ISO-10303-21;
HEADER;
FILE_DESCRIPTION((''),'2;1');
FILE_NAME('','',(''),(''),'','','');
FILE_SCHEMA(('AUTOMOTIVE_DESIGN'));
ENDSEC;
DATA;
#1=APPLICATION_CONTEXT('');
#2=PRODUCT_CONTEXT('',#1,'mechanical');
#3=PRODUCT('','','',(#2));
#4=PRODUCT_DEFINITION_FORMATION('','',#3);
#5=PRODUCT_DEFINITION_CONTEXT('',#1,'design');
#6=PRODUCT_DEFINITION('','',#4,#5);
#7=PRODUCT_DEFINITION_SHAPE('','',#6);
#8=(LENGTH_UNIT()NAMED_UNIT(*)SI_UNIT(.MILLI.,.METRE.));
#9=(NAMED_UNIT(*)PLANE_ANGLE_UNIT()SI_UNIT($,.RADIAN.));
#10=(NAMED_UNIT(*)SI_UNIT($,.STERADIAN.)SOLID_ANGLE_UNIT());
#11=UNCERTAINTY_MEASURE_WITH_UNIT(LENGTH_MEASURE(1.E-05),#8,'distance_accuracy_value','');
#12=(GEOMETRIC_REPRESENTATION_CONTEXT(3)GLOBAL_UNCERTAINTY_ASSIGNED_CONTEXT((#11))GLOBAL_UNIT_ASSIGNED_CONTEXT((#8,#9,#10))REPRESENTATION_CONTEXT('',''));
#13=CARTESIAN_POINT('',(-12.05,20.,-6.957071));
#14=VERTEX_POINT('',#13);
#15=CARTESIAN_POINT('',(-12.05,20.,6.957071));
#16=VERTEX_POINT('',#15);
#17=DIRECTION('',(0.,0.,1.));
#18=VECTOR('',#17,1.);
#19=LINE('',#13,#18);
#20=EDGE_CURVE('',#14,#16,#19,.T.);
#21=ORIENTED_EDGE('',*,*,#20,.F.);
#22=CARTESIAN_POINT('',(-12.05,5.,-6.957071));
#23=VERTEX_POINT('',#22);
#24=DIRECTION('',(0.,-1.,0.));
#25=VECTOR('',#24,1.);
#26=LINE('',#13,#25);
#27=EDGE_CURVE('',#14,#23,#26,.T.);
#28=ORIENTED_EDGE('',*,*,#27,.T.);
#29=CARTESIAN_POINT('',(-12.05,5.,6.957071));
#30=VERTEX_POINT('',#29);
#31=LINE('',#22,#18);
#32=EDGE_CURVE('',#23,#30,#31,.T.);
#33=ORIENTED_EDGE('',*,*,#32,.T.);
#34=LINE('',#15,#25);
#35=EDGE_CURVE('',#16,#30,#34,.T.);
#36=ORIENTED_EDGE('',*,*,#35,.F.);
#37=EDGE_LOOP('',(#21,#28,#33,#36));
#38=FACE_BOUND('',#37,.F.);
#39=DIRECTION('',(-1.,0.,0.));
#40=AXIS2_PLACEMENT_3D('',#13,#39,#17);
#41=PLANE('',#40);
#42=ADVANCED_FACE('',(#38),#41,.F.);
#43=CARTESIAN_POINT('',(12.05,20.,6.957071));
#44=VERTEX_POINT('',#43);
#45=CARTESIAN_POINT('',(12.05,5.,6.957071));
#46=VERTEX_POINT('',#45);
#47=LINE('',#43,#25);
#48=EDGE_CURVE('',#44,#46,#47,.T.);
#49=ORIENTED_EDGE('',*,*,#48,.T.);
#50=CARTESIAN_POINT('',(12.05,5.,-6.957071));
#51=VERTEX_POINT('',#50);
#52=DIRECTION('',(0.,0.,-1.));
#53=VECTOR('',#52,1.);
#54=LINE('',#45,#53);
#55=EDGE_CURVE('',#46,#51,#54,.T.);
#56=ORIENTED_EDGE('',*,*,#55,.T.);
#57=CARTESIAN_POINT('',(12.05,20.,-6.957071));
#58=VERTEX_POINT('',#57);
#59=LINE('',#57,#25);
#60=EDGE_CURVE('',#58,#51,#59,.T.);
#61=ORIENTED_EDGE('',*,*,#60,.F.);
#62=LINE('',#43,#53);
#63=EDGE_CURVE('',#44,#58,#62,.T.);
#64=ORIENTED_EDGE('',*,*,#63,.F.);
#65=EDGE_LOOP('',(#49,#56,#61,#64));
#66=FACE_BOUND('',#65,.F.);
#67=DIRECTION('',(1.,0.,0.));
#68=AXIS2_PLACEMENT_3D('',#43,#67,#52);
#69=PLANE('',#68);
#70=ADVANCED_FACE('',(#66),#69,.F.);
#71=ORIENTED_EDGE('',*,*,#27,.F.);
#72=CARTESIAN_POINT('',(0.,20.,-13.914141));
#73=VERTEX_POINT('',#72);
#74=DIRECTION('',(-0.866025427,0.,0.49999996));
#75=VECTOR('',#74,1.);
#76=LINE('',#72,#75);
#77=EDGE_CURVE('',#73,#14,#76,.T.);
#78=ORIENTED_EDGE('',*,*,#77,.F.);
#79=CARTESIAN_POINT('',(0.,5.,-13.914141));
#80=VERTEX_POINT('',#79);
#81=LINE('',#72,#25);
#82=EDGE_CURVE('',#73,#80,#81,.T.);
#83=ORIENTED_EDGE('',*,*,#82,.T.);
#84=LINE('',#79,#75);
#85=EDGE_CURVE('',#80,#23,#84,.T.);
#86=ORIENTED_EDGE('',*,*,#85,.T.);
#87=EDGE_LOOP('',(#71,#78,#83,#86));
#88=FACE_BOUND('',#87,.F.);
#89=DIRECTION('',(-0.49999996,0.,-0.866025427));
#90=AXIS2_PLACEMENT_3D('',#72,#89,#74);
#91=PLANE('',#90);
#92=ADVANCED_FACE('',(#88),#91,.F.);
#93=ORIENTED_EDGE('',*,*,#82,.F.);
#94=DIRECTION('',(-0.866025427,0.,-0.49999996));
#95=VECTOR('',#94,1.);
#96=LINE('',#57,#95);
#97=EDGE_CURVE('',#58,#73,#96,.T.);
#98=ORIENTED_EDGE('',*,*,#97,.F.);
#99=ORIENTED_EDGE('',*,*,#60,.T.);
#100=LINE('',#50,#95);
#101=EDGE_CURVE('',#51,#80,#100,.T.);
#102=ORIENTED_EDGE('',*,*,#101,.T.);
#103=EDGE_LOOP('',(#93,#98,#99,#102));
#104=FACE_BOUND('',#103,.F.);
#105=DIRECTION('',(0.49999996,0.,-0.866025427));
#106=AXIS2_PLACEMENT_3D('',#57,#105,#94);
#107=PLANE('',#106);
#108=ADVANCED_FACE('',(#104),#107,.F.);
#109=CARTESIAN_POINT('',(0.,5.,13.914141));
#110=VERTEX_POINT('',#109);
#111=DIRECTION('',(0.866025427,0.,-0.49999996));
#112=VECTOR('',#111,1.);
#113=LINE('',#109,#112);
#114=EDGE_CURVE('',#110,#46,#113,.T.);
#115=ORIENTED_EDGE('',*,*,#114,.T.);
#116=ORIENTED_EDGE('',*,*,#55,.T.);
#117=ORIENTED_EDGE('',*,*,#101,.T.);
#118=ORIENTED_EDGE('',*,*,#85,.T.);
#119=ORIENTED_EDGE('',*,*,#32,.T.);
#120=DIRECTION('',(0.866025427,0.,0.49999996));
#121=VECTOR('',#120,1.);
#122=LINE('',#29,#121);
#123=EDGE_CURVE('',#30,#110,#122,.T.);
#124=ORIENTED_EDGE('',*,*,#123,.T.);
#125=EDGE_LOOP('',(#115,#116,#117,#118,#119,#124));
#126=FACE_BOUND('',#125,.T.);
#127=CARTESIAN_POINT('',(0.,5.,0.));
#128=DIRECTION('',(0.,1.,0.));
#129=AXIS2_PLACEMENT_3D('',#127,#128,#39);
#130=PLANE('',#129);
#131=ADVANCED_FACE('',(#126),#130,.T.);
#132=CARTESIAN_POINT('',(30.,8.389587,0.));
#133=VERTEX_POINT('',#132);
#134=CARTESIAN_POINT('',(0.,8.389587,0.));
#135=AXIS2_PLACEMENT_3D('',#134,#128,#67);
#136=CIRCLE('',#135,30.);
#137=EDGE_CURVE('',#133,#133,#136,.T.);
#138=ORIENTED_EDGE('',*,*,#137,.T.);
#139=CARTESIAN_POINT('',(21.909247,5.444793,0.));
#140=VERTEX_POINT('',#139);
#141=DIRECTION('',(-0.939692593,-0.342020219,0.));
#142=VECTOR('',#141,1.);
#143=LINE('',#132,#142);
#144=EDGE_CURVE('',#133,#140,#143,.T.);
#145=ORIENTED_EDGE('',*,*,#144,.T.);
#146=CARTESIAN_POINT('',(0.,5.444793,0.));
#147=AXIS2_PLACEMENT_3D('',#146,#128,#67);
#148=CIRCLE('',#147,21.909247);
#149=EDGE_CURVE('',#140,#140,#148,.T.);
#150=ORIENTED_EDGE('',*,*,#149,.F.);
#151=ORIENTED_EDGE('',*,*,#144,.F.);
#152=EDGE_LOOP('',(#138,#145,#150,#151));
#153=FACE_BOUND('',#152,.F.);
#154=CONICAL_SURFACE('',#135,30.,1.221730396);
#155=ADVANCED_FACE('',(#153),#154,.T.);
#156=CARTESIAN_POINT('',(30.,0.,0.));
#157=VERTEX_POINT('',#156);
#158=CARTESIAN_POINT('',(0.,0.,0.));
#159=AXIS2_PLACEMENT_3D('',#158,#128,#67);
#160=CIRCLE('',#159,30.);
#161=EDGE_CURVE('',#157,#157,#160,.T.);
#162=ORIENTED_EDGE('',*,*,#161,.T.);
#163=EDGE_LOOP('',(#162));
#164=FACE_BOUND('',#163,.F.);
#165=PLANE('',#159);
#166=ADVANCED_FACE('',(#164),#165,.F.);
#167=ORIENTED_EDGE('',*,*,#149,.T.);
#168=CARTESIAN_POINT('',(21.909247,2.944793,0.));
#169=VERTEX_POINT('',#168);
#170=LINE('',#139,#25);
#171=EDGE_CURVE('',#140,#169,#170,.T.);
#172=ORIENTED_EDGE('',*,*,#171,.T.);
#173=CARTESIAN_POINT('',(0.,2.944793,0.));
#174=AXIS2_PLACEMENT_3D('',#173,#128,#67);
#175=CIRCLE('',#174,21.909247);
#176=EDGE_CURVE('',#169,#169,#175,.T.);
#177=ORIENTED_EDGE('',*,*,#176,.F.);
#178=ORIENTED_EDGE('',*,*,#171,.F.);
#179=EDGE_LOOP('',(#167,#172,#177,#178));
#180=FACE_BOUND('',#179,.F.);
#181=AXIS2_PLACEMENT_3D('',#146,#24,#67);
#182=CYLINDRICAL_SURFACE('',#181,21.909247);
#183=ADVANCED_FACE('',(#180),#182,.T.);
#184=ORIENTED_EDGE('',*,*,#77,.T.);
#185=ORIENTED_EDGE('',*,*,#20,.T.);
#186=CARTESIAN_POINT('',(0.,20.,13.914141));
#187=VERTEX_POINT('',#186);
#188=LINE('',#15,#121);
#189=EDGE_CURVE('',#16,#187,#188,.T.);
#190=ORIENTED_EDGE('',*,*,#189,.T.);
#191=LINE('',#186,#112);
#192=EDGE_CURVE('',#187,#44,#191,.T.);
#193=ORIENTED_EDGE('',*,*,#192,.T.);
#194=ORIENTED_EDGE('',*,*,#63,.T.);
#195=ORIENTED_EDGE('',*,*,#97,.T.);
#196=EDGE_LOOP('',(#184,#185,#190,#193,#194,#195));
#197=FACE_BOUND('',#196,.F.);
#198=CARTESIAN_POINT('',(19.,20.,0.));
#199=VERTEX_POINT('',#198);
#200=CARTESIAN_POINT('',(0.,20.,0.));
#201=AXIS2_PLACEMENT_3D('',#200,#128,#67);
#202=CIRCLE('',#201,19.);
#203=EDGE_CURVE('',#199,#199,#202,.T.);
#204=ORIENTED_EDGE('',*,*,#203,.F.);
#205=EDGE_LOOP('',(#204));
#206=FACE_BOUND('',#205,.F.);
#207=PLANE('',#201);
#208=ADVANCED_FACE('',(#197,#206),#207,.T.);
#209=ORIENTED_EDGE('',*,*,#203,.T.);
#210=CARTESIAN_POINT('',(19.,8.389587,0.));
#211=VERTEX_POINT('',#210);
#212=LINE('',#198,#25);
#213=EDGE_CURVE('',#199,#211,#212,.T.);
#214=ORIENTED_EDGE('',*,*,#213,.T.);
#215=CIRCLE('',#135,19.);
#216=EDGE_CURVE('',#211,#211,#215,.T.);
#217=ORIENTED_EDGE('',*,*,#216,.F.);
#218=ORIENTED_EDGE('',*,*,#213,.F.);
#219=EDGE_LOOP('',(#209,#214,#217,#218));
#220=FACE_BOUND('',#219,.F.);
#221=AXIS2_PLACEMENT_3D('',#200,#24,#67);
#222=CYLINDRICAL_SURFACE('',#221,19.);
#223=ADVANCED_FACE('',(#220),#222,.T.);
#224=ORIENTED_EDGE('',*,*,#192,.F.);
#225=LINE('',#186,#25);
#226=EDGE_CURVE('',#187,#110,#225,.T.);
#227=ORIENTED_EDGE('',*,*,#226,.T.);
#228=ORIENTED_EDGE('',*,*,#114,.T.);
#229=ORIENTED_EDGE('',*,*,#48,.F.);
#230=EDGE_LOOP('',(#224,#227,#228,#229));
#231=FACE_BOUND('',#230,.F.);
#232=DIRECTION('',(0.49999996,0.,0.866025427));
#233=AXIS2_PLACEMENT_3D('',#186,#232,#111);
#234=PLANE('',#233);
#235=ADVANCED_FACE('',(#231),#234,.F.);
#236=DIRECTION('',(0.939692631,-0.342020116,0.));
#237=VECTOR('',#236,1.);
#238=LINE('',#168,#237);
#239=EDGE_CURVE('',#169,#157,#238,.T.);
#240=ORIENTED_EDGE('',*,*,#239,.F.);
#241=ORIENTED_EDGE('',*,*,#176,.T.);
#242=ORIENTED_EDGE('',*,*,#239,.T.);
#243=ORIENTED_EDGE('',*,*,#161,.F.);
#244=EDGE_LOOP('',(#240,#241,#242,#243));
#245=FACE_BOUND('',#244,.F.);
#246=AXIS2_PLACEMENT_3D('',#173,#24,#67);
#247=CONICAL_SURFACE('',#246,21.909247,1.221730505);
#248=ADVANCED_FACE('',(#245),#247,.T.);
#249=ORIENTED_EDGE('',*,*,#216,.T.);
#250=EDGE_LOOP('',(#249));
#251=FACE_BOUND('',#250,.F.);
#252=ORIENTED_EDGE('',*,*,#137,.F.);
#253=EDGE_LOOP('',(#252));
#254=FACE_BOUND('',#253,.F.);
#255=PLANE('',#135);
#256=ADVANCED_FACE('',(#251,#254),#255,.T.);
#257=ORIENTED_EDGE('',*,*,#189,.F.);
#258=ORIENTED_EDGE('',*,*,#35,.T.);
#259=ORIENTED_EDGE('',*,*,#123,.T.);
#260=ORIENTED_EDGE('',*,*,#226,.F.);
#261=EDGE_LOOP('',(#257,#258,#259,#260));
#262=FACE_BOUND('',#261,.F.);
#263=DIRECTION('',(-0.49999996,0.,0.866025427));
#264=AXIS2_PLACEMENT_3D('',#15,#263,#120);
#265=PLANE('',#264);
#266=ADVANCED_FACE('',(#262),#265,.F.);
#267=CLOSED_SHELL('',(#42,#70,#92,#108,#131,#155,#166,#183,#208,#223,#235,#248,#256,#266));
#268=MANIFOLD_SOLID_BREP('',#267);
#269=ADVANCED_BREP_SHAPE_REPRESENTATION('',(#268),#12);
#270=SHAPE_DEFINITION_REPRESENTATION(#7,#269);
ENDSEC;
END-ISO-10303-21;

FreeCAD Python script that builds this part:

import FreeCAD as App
import Part
import Sketcher
Q = App.Units.Quantity


def add_polygon(sketch, points):
    """Adds a closed chain of lines whose ends are joined by coincident constraints."""
    first, n = sketch.GeometryCount, len(points)
    for a, b in zip(points, points[1:] + points[:1]):
        sketch.addGeometry(Part.LineSegment(App.Vector(*a, 0), App.Vector(*b, 0)), False)
    for i in range(n):
        sketch.addConstraint(Sketcher.Constraint("Coincident", first + i, 2, first + (i + 1) % n, 1))

doc = App.newDocument("Part")
body = doc.addObject("PartDesign::Body", "Body")

sketch1 = body.newObject("Sketcher::SketchObject", "Sketch")
sketch1.AttachmentSupport = (doc.getObject("XY_Plane"), [""])
sketch1.MapMode = "FlatFace"
add_polygon(sketch1, [(19, 20), (0, 20), (0, 0), (30, 0), (21.9, 2.9), (21.9, 5.4), (30, 8.4), (19, 8.4)])
sketch1.addConstraint(Sketcher.Constraint("Horizontal", 0))
sketch1.addConstraint(Sketcher.Constraint("Vertical", 1))
sketch1.addConstraint(Sketcher.Constraint("Horizontal", 2))
sketch1.addConstraint(Sketcher.Constraint("Vertical", 4))
sketch1.addConstraint(Sketcher.Constraint("Horizontal", 6))
sketch1.addConstraint(Sketcher.Constraint("Vertical", 7))
sketch1.addConstraint(Sketcher.Constraint("Coincident", 1, 2, -1, 1))
sketch1.addConstraint(Sketcher.Constraint("Vertical", 2, 2, 5, 2))
sketch1.addConstraint(Sketcher.Constraint("Equal", 3, 5))
sketch1.addConstraint(Sketcher.Constraint("DistanceX", 0, 2, 0, 1, Q("19 mm")))
sketch1.addConstraint(Sketcher.Constraint("DistanceX", 2, 1, 2, 2, Q("30 mm")))
sketch1.addConstraint(Sketcher.Constraint("DistanceY", 1, 2, 1, 1, Q("20 mm")))
sketch1.addConstraint(Sketcher.Constraint("Angle", 3, Q("160.000002 deg")))
sketch1.addConstraint(Sketcher.Constraint("DistanceY", 4, 1, 4, 2, Q("2.5 mm")))
sketch1.addConstraint(Sketcher.Constraint("Distance", 3, Q("8.609999 mm")))
revolution = body.newObject("PartDesign::Revolution", "Revolution")
revolution.Profile = sketch1
revolution.ReferenceAxis = (sketch1, ["V_Axis"])
revolution.Angle = 360

sketch2 = body.newObject("Sketcher::SketchObject", "Sketch001")
sketch2.AttachmentSupport = (doc.getObject("XZ_Plane"), [""])
sketch2.MapMode = "FlatFace"
sketch2.AttachmentOffset = App.Placement(App.Vector(0, 0, -20), App.Rotation())
add_polygon(sketch2, [(0, 14), (12, 7), (12, -7), (0, -14), (-12, -7), (-12, 7)])
sketch2.addConstraint(Sketcher.Constraint("Vertical", 1))
sketch2.addConstraint(Sketcher.Constraint("Vertical", 4))
sketch2.addConstraint(Sketcher.Constraint("Symmetric", 0, 2, 3, 2, -1, 1))
sketch2.addConstraint(Sketcher.Constraint("Symmetric", 2, 2, 5, 2, -1, 1))
sketch2.addConstraint(Sketcher.Constraint("PointOnObject", 2, 2, -2))
sketch2.addConstraint(Sketcher.Constraint("Parallel", 2, 5))
sketch2.addConstraint(Sketcher.Constraint("Horizontal", 1, 2, 3, 2))
sketch2.addConstraint(Sketcher.Constraint("Angle", 0, Q("-29.999997 deg")))
sketch2.addConstraint(Sketcher.Constraint("DistanceX", 3, 2, 1, 2, Q("24.1 mm")))
sketch2.addConstraint(Sketcher.Constraint("DistanceY", 1, 2, 1, 1, Q("13.914142 mm")))
pocket1 = body.newObject("PartDesign::Pocket", "Pocket")
pocket1.Profile = sketch2
pocket1.Length = 15
pocket1.Reversed = True

doc.recompute()
